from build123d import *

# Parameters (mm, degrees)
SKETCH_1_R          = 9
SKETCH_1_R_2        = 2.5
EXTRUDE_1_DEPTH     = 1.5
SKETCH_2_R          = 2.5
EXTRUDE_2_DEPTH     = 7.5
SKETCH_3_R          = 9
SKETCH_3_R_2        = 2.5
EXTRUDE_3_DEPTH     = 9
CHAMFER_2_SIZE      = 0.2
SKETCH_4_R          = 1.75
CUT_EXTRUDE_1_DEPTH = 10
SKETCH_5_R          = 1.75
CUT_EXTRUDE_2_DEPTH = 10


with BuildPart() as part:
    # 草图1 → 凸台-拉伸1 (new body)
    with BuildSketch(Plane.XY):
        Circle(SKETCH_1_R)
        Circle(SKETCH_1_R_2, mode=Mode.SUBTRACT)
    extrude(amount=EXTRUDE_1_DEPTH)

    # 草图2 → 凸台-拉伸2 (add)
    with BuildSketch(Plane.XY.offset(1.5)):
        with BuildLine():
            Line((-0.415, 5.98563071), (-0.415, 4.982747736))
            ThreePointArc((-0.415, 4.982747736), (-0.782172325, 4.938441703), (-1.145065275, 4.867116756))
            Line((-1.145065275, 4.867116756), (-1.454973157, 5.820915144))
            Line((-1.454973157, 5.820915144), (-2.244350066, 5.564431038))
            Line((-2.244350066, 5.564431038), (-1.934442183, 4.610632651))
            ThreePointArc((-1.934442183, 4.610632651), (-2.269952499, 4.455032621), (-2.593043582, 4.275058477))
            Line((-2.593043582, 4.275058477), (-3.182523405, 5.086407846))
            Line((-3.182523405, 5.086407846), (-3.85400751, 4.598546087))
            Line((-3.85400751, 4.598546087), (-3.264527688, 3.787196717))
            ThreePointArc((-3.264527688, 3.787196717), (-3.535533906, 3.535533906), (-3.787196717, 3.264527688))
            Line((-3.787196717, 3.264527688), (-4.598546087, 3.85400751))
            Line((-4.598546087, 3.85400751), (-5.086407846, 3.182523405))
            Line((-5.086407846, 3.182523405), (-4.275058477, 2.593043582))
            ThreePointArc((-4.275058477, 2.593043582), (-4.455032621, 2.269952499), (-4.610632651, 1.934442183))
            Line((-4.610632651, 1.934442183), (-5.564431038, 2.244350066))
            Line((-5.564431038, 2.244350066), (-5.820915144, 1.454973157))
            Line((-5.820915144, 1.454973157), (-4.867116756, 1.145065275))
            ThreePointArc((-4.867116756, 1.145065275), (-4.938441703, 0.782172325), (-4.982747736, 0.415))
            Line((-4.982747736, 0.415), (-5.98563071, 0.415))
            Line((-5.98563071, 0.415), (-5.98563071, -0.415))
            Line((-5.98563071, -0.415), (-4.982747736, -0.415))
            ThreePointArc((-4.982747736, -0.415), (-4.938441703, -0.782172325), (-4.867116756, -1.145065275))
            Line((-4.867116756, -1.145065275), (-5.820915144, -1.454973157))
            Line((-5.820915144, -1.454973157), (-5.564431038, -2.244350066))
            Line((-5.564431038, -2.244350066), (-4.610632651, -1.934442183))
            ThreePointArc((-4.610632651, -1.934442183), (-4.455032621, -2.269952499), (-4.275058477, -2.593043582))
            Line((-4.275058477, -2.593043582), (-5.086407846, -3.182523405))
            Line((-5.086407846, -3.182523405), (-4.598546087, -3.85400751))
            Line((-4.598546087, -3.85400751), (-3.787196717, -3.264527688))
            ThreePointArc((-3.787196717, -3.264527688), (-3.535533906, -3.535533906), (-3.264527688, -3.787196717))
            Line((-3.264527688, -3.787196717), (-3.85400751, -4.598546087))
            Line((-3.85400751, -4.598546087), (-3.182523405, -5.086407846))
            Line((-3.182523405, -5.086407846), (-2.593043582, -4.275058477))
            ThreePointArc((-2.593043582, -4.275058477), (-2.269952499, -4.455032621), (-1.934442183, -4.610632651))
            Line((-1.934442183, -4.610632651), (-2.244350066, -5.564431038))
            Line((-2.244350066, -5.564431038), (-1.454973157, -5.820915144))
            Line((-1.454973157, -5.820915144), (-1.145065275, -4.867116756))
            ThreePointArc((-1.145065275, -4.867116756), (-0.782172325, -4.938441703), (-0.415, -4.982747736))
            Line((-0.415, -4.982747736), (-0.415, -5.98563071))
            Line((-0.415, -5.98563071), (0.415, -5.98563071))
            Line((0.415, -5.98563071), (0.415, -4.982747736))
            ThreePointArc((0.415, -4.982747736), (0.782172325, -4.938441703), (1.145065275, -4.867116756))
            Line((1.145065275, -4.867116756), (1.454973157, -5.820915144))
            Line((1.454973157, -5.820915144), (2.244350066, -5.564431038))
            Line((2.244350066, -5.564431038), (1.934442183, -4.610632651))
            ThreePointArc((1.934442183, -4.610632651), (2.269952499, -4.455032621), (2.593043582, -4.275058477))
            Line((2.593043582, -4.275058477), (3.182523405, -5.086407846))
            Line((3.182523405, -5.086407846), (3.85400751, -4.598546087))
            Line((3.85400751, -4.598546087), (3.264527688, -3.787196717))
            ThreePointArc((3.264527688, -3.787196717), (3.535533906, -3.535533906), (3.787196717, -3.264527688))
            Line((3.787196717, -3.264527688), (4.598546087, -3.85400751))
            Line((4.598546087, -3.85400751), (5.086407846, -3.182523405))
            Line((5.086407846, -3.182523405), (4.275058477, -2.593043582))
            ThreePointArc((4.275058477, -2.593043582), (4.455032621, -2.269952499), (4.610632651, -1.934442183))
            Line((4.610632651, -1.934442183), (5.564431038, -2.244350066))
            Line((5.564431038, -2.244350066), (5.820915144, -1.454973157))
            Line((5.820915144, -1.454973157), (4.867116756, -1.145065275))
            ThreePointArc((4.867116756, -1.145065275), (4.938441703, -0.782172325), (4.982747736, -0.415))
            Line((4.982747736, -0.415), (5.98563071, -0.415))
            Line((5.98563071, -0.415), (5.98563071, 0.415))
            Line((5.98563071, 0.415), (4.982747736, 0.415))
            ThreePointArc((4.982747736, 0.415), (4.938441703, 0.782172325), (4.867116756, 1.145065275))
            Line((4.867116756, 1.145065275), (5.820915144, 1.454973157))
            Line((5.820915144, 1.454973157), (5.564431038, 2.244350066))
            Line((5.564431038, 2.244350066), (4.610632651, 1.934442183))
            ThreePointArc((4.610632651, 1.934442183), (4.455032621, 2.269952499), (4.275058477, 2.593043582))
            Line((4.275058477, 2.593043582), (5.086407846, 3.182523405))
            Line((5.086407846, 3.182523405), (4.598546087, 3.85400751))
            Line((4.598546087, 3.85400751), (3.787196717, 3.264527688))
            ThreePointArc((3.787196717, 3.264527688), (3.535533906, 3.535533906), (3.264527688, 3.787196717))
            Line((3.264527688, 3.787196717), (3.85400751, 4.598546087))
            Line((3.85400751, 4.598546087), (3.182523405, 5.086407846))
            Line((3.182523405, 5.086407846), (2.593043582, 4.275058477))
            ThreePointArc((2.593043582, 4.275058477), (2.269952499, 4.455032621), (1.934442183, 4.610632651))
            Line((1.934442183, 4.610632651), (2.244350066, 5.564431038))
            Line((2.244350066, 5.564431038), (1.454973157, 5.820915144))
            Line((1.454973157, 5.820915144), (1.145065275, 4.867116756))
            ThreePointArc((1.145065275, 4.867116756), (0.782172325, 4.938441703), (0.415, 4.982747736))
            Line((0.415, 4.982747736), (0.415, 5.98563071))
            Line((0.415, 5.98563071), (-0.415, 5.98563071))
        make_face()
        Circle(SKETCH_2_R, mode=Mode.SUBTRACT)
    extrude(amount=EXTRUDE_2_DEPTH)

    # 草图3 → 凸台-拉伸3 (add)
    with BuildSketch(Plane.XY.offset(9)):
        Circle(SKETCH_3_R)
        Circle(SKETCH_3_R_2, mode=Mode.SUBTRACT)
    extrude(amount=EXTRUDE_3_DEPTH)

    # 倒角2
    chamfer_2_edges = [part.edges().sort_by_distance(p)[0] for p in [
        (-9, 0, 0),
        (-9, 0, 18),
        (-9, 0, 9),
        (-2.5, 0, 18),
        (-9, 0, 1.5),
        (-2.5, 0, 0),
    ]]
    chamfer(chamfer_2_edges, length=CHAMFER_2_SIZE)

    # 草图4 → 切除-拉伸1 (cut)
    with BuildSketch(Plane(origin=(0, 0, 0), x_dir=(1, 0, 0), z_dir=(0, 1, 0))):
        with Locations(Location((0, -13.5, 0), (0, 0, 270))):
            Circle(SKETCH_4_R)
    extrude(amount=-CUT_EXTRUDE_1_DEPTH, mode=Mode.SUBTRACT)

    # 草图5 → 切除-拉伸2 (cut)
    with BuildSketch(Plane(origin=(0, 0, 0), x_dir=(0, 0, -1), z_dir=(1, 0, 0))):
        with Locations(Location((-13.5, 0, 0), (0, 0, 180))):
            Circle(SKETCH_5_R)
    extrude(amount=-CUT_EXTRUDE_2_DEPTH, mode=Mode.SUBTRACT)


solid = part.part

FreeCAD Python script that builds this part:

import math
import FreeCAD as App
import Part
import Sketcher
from FreeCAD import Vector
Q = App.Units.Quantity


def edges_at(feature, points):
    """Names of the edges that pass closest to the given points."""
    edges = feature.Shape.Edges
    near = lambda p: min(range(len(edges)), key=lambda i: edges[i].distToShape(Part.Vertex(*p))[0])
    return sorted({f"Edge{near(p) + 1}" for p in points})

doc = App.newDocument("Part")
params = doc.addObject("Spreadsheet::Sheet", "Params")
for row, (alias, value) in enumerate([
    ("sketch1_diameter", "18 mm"),
    ("sketch1_diameter2", "5 mm"),
    ("pad1_length", "1.5 mm"),
    ("sketch2_diameter", "5 mm"),
    ("sketch2_radius", "5 mm"),
    ("sketch2_width", "0.83 mm"),
    ("sketch2_length", "0.83 mm"),
    ("pad2_length", "7.5 mm"),
    ("sketch3_diameter", "18 mm"),
    ("sketch3_diameter2", "5 mm"),
    ("pad3_length", "9 mm"),
    ("chamfer_size", "0.2 mm"),
    ("sketch4_diameter", "3.5 mm"),
    ("pocket1_length", "10 mm"),
    ("sketch5_diameter", "3.5 mm"),
    ("pocket2_length", "10 mm"),
], start=1):
    params.set(f"A{row}", alias)
    params.set(f"B{row}", "=" + value)
    params.setAlias(f"B{row}", alias)

body = doc.addObject("PartDesign::Body", "Body")

sketch1 = doc.addObject("Sketcher::SketchObject", "Sketch")
body.addObject(sketch1)
sketch1.AttachmentSupport = (doc.XY_Plane, [""])
sketch1.MapMode = "FlatFace"
sketch1.addGeometry([
    Part.Circle(Vector(0, 0, 0), Vector(0, 0, 1), 9),
    Part.Circle(Vector(0, 0, 0), Vector(0, 0, 1), 2.5),
], False)
sketch1.addConstraint([
    Sketcher.Constraint("Coincident", 0, 3, -1, 1),
    Sketcher.Constraint("Coincident", 1, 3, -1, 1),
    Sketcher.Constraint("Diameter", 0, 18.0),
    Sketcher.Constraint("Diameter", 1, 5.0),
])
sketch1.setExpression("Constraints[2]", "Params.sketch1_diameter")
sketch1.setExpression("Constraints[3]", "Params.sketch1_diameter2")
pad1 = doc.addObject("PartDesign::Pad", "Pad")
body.addObject(pad1)
pad1.Profile = sketch1
pad1.setExpression("Length", "Params.pad1_length")

sketch2 = doc.addObject("Sketcher::SketchObject", "Sketch001")
body.addObject(sketch2)
sketch2.AttachmentSupport = (doc.XY_Plane, [""])
sketch2.MapMode = "FlatFace"
sketch2.AttachmentOffset = App.Placement(Vector(0, 0, 1.5), App.Rotation())
sketch2.addGeometry([
    Part.LineSegment(Vector(-0.4, 6, 0), Vector(-0.4, 5, 0)),
    Part.ArcOfCircle(Part.Circle(Vector(0, 0, 0), Vector(0, 0, 1), 5), math.radians(94.76), math.radians(103.24)),
    Part.LineSegment(Vector(-1.1, 4.9, 0), Vector(-1.5, 5.8, 0)),
    Part.LineSegment(Vector(-1.5, 5.8, 0), Vector(-2.2, 5.6, 0)),
    Part.LineSegment(Vector(-2.2, 5.6, 0), Vector(-1.9, 4.6, 0)),
    Part.ArcOfCircle(Part.Circle(Vector(0, 0, 0), Vector(0, 0, 1), 5), math.radians(112.76), math.radians(121.24)),
    Part.LineSegment(Vector(-2.6, 4.3, 0), Vector(-3.2, 5.1, 0)),
    Part.LineSegment(Vector(-3.2, 5.1, 0), Vector(-3.9, 4.6, 0)),
    Part.LineSegment(Vector(-3.9, 4.6, 0), Vector(-3.3, 3.8, 0)),
    Part.ArcOfCircle(Part.Circle(Vector(0, 0, 0), Vector(0, 0, 1), 5), math.radians(130.76), math.radians(139.24)),
    Part.LineSegment(Vector(-3.8, 3.3, 0), Vector(-4.6, 3.9, 0)),
    Part.LineSegment(Vector(-4.6, 3.9, 0), Vector(-5.1, 3.2, 0)),
    Part.LineSegment(Vector(-5.1, 3.2, 0), Vector(-4.3, 2.6, 0)),
    Part.ArcOfCircle(Part.Circle(Vector(0, 0, 0), Vector(0, 0, 1), 5), math.radians(148.76), math.radians(157.24)),
    Part.LineSegment(Vector(-4.6, 1.9, 0), Vector(-5.6, 2.2, 0)),
    Part.LineSegment(Vector(-5.6, 2.2, 0), Vector(-5.8, 1.5, 0)),
    Part.LineSegment(Vector(-5.8, 1.5, 0), Vector(-4.9, 1.1, 0)),
    Part.ArcOfCircle(Part.Circle(Vector(0, 0, 0), Vector(0, 0, 1), 5), math.radians(166.76), math.radians(175.24)),
    Part.LineSegment(Vector(-5, 0.4, 0), Vector(-6, 0.4, 0)),
    Part.LineSegment(Vector(-6, 0.4, 0), Vector(-6, -0.4, 0)),
    Part.LineSegment(Vector(-6, -0.4, 0), Vector(-5, -0.4, 0)),
    Part.ArcOfCircle(Part.Circle(Vector(0, 0, 0), Vector(0, 0, 1), 5), math.radians(-175.24), math.radians(-166.76)),
    Part.LineSegment(Vector(-4.9, -1.1, 0), Vector(-5.8, -1.5, 0)),
    Part.LineSegment(Vector(-5.8, -1.5, 0), Vector(-5.6, -2.2, 0)),
    Part.LineSegment(Vector(-5.6, -2.2, 0), Vector(-4.6, -1.9, 0)),
    Part.ArcOfCircle(Part.Circle(Vector(0, 0, 0), Vector(0, 0, 1), 5), math.radians(-157.24), math.radians(-148.76)),
    Part.LineSegment(Vector(-4.3, -2.6, 0), Vector(-5.1, -3.2, 0)),
    Part.LineSegment(Vector(-5.1, -3.2, 0), Vector(-4.6, -3.9, 0)),
    Part.LineSegment(Vector(-4.6, -3.9, 0), Vector(-3.8, -3.3, 0)),
    Part.ArcOfCircle(Part.Circle(Vector(0, 0, 0), Vector(0, 0, 1), 5), math.radians(-139.24), math.radians(-130.76)),
    Part.LineSegment(Vector(-3.3, -3.8, 0), Vector(-3.9, -4.6, 0)),
    Part.LineSegment(Vector(-3.9, -4.6, 0), Vector(-3.2, -5.1, 0)),
    Part.LineSegment(Vector(-3.2, -5.1, 0), Vector(-2.6, -4.3, 0)),
    Part.ArcOfCircle(Part.Circle(Vector(0, 0, 0), Vector(0, 0, 1), 5), math.radians(-121.24), math.radians(-112.76)),
    Part.LineSegment(Vector(-1.9, -4.6, 0), Vector(-2.2, -5.6, 0)),
    Part.LineSegment(Vector(-2.2, -5.6, 0), Vector(-1.5, -5.8, 0)),
    Part.LineSegment(Vector(-1.5, -5.8, 0), Vector(-1.1, -4.9, 0)),
    Part.ArcOfCircle(Part.Circle(Vector(0, 0, 0), Vector(0, 0, 1), 5), math.radians(-103.24), math.radians(-94.76)),
    Part.LineSegment(Vector(-0.4, -5, 0), Vector(-0.4, -6, 0)),
    Part.LineSegment(Vector(-0.4, -6, 0), Vector(0.4, -6, 0)),
    Part.LineSegment(Vector(0.4, -6, 0), Vector(0.4, -5, 0)),
    Part.ArcOfCircle(Part.Circle(Vector(0, 0, 0), Vector(0, 0, 1), 5), math.radians(-85.24), math.radians(-76.76)),
    Part.LineSegment(Vector(1.1, -4.9, 0), Vector(1.5, -5.8, 0)),
    Part.LineSegment(Vector(1.5, -5.8, 0), Vector(2.2, -5.6, 0)),
    Part.LineSegment(Vector(2.2, -5.6, 0), Vector(1.9, -4.6, 0)),
    Part.ArcOfCircle(Part.Circle(Vector(0, 0, 0), Vector(0, 0, 1), 5), math.radians(-67.24), math.radians(-58.76)),
    Part.LineSegment(Vector(2.6, -4.3, 0), Vector(3.2, -5.1, 0)),
    Part.LineSegment(Vector(3.2, -5.1, 0), Vector(3.9, -4.6, 0)),
    Part.LineSegment(Vector(3.9, -4.6, 0), Vector(3.3, -3.8, 0)),
    Part.ArcOfCircle(Part.Circle(Vector(0, 0, 0), Vector(0, 0, 1), 5), math.radians(-49.24), math.radians(-40.76)),
    Part.LineSegment(Vector(3.8, -3.3, 0), Vector(4.6, -3.9, 0)),
    Part.LineSegment(Vector(4.6, -3.9, 0), Vector(5.1, -3.2, 0)),
    Part.LineSegment(Vector(5.1, -3.2, 0), Vector(4.3, -2.6, 0)),
    Part.ArcOfCircle(Part.Circle(Vector(0, 0, 0), Vector(0, 0, 1), 5), math.radians(-31.24), math.radians(-22.76)),
    Part.LineSegment(Vector(4.6, -1.9, 0), Vector(5.6, -2.2, 0)),
    Part.LineSegment(Vector(5.6, -2.2, 0), Vector(5.8, -1.5, 0)),
    Part.LineSegment(Vector(5.8, -1.5, 0), Vector(4.9, -1.1, 0)),
    Part.ArcOfCircle(Part.Circle(Vector(0, 0, 0), Vector(0, 0, 1), 5), math.radians(-13.24), math.radians(-4.76)),
    Part.LineSegment(Vector(5, -0.4, 0), Vector(6, -0.4, 0)),
    Part.LineSegment(Vector(6, -0.4, 0), Vector(6, 0.4, 0)),
    Part.LineSegment(Vector(6, 0.4, 0), Vector(5, 0.4, 0)),
    Part.ArcOfCircle(Part.Circle(Vector(0, 0, 0), Vector(0, 0, 1), 5), math.radians(4.76), math.radians(13.24)),
    Part.LineSegment(Vector(4.9, 1.1, 0), Vector(5.8, 1.5, 0)),
    Part.LineSegment(Vector(5.8, 1.5, 0), Vector(5.6, 2.2, 0)),
    Part.LineSegment(Vector(5.6, 2.2, 0), Vector(4.6, 1.9, 0)),
    Part.ArcOfCircle(Part.Circle(Vector(0, 0, 0), Vector(0, 0, 1), 5), math.radians(22.76), math.radians(31.24)),
    Part.LineSegment(Vector(4.3, 2.6, 0), Vector(5.1, 3.2, 0)),
    Part.LineSegment(Vector(5.1, 3.2, 0), Vector(4.6, 3.9, 0)),
    Part.LineSegment(Vector(4.6, 3.9, 0), Vector(3.8, 3.3, 0)),
    Part.ArcOfCircle(Part.Circle(Vector(0, 0, 0), Vector(0, 0, 1), 5), math.radians(40.76), math.radians(49.24)),
    Part.LineSegment(Vector(3.3, 3.8, 0), Vector(3.9, 4.6, 0)),
    Part.LineSegment(Vector(3.9, 4.6, 0), Vector(3.2, 5.1, 0)),
    Part.LineSegment(Vector(3.2, 5.1, 0), Vector(2.6, 4.3, 0)),
    Part.ArcOfCircle(Part.Circle(Vector(0, 0, 0), Vector(0, 0, 1), 5), math.radians(58.76), math.radians(67.24)),
    Part.LineSegment(Vector(1.9, 4.6, 0), Vector(2.2, 5.6, 0)),
    Part.LineSegment(Vector(2.2, 5.6, 0), Vector(1.5, 5.8, 0)),
    Part.LineSegment(Vector(1.5, 5.8, 0), Vector(1.1, 4.9, 0)),
    Part.ArcOfCircle(Part.Circle(Vector(0, 0, 0), Vector(0, 0, 1), 5), math.radians(76.76), math.radians(85.24)),
    Part.LineSegment(Vector(0.4, 5, 0), Vector(0.4, 6, 0)),
    Part.LineSegment(Vector(0.4, 6, 0), Vector(-0.4, 6, 0)),
    Part.Circle(Vector(0, 0, 0), Vector(0, 0, 1), 2.5),
], False)
sketch2.addConstraint([
    Sketcher.Constraint("Coincident", 0, 2, 1, 1),
    Sketcher.Constraint("Coincident", 1, 2, 2, 1),
    Sketcher.Constraint("Coincident", 2, 2, 3, 1),
    Sketcher.Constraint("Coincident", 3, 2, 4, 1),
    Sketcher.Constraint("Coincident", 4, 2, 5, 1),
    Sketcher.Constraint("Coincident", 5, 2, 6, 1),
    Sketcher.Constraint("Coincident", 6, 2, 7, 1),
    Sketcher.Constraint("Coincident", 7, 2, 8, 1),
    Sketcher.Constraint("Coincident", 8, 2, 9, 1),
    Sketcher.Constraint("Coincident", 9, 2, 10, 1),
    Sketcher.Constraint("Coincident", 10, 2, 11, 1),
    Sketcher.Constraint("Coincident", 11, 2, 12, 1),
    Sketcher.Constraint("Coincident", 12, 2, 13, 1),
    Sketcher.Constraint("Coincident", 13, 2, 14, 1),
    Sketcher.Constraint("Coincident", 14, 2, 15, 1),
    Sketcher.Constraint("Coincident", 15, 2, 16, 1),
    Sketcher.Constraint("Coincident", 16, 2, 17, 1),
    Sketcher.Constraint("Coincident", 17, 2, 18, 1),
    Sketcher.Constraint("Coincident", 18, 2, 19, 1),
    Sketcher.Constraint("Coincident", 19, 2, 20, 1),
    Sketcher.Constraint("Coincident", 20, 2, 21, 1),
    Sketcher.Constraint("Coincident", 21, 2, 22, 1),
    Sketcher.Constraint("Coincident", 22, 2, 23, 1),
    Sketcher.Constraint("Coincident", 23, 2, 24, 1),
    Sketcher.Constraint("Coincident", 24, 2, 25, 1),
    Sketcher.Constraint("Coincident", 25, 2, 26, 1),
    Sketcher.Constraint("Coincident", 26, 2, 27, 1),
    Sketcher.Constraint("Coincident", 27, 2, 28, 1),
    Sketcher.Constraint("Coincident", 28, 2, 29, 1),
    Sketcher.Constraint("Coincident", 29, 2, 30, 1),
    Sketcher.Constraint("Coincident", 30, 2, 31, 1),
    Sketcher.Constraint("Coincident", 31, 2, 32, 1),
    Sketcher.Constraint("Coincident", 32, 2, 33, 1),
    Sketcher.Constraint("Coincident", 33, 2, 34, 1),
    Sketcher.Constraint("Coincident", 34, 2, 35, 1),
    Sketcher.Constraint("Coincident", 35, 2, 36, 1),
    Sketcher.Constraint("Coincident", 36, 2, 37, 1),
    Sketcher.Constraint("Coincident", 37, 2, 38, 1),
    Sketcher.Constraint("Coincident", 38, 2, 39, 1),
    Sketcher.Constraint("Coincident", 39, 2, 40, 1),
    Sketcher.Constraint("Coincident", 40, 2, 41, 1),
    Sketcher.Constraint("Coincident", 41, 2, 42, 1),
    Sketcher.Constraint("Coincident", 42, 2, 43, 1),
    Sketcher.Constraint("Coincident", 43, 2, 44, 1),
    Sketcher.Constraint("Coincident", 44, 2, 45, 1),
    Sketcher.Constraint("Coincident", 45, 2, 46, 1),
    Sketcher.Constraint("Coincident", 46, 2, 47, 1),
    Sketcher.Constraint("Coincident", 47, 2, 48, 1),
    Sketcher.Constraint("Coincident", 48, 2, 49, 1),
    Sketcher.Constraint("Coincident", 49, 2, 50, 1),
    Sketcher.Constraint("Coincident", 50, 2, 51, 1),
    Sketcher.Constraint("Coincident", 51, 2, 52, 1),
    Sketcher.Constraint("Coincident", 52, 2, 53, 1),
    Sketcher.Constraint("Coincident", 53, 2, 54, 1),
    Sketcher.Constraint("Coincident", 54, 2, 55, 1),
    Sketcher.Constraint("Coincident", 55, 2, 56, 1),
    Sketcher.Constraint("Coincident", 56, 2, 57, 1),
    Sketcher.Constraint("Coincident", 57, 2, 58, 1),
    Sketcher.Constraint("Coincident", 58, 2, 59, 1),
    Sketcher.Constraint("Coincident", 59, 2, 60, 1),
    Sketcher.Constraint("Coincident", 60, 2, 61, 1),
    Sketcher.Constraint("Coincident", 61, 2, 62, 1),
    Sketcher.Constraint("Coincident", 62, 2, 63, 1),
    Sketcher.Constraint("Coincident", 63, 2, 64, 1),
    Sketcher.Constraint("Coincident", 64, 2, 65, 1),
    Sketcher.Constraint("Coincident", 65, 2, 66, 1),
    Sketcher.Constraint("Coincident", 66, 2, 67, 1),
    Sketcher.Constraint("Coincident", 67, 2, 68, 1),
    Sketcher.Constraint("Coincident", 68, 2, 69, 1),
    Sketcher.Constraint("Coincident", 69, 2, 70, 1),
    Sketcher.Constraint("Coincident", 70, 2, 71, 1),
    Sketcher.Constraint("Coincident", 71, 2, 72, 1),
    Sketcher.Constraint("Coincident", 72, 2, 73, 1),
    Sketcher.Constraint("Coincident", 73, 2, 74, 1),
    Sketcher.Constraint("Coincident", 74, 2, 75, 1),
    Sketcher.Constraint("Coincident", 75, 2, 76, 1),
    Sketcher.Constraint("Coincident", 76, 2, 77, 1),
    Sketcher.Constraint("Coincident", 77, 2, 78, 1),
    Sketcher.Constraint("Coincident", 78, 2, 79, 1),
    Sketcher.Constraint("Coincident", 79, 2, 0, 1),
    Sketcher.Constraint("Vertical", 0),
    Sketcher.Constraint("Horizontal", 18),
    Sketcher.Constraint("Vertical", 19),
    Sketcher.Constraint("Horizontal", 20),
    Sketcher.Constraint("Vertical", 38),
    Sketcher.Constraint("Horizontal", 39),
    Sketcher.Constraint("Vertical", 40),
    Sketcher.Constraint("Horizontal", 58),
    Sketcher.Constraint("Vertical", 59),
    Sketcher.Constraint("Horizontal", 60),
    Sketcher.Constraint("Vertical", 78),
    Sketcher.Constraint("Horizontal", 79),
    Sketcher.Constraint("Coincident", 1, 3, -1, 1),
    Sketcher.Constraint("Coincident", 5, 3, -1, 1),
    Sketcher.Constraint("Coincident", 9, 3, -1, 1),
    Sketcher.Constraint("Coincident", 13, 3, -1, 1),
    Sketcher.Constraint("Coincident", 17, 3, -1, 1),
    Sketcher.Constraint("Coincident", 21, 3, -1, 1),
    Sketcher.Constraint("Coincident", 25, 3, -1, 1),
    Sketcher.Constraint("Coincident", 29, 3, -1, 1),
    Sketcher.Constraint("Coincident", 33, 3, -1, 1),
    Sketcher.Constraint("Coincident", 37, 3, -1, 1),
    Sketcher.Constraint("Coincident", 41, 3, -1, 1),
    Sketcher.Constraint("Coincident", 45, 3, -1, 1),
    Sketcher.Constraint("Coincident", 49, 3, -1, 1),
    Sketcher.Constraint("Coincident", 53, 3, -1, 1),
    Sketcher.Constraint("Coincident", 57, 3, -1, 1),
    Sketcher.Constraint("Coincident", 61, 3, -1, 1),
    Sketcher.Constraint("Coincident", 65, 3, -1, 1),
    Sketcher.Constraint("Coincident", 69, 3, -1, 1),
    Sketcher.Constraint("Coincident", 73, 3, -1, 1),
    Sketcher.Constraint("Coincident", 77, 3, -1, 1),
    Sketcher.Constraint("Coincident", 80, 3, -1, 1),
    Sketcher.Constraint("Equal", 1, 5),
    Sketcher.Constraint("Equal", 5, 9),
    Sketcher.Constraint("Equal", 9, 13),
    Sketcher.Constraint("Equal", 13, 17),
    Sketcher.Constraint("Equal", 17, 21),
    Sketcher.Constraint("Equal", 21, 25),
    Sketcher.Constraint("Equal", 25, 29),
    Sketcher.Constraint("Equal", 29, 33),
    Sketcher.Constraint("Equal", 33, 37),
    Sketcher.Constraint("Equal", 37, 41),
    Sketcher.Constraint("Equal", 41, 45),
    Sketcher.Constraint("Equal", 45, 49),
    Sketcher.Constraint("Equal", 49, 53),
    Sketcher.Constraint("Equal", 53, 57),
    Sketcher.Constraint("Equal", 57, 61),
    Sketcher.Constraint("Equal", 61, 65),
    Sketcher.Constraint("Equal", 65, 69),
    Sketcher.Constraint("Equal", 69, 73),
    Sketcher.Constraint("Equal", 73, 77),
    Sketcher.Constraint("Symmetric", 2, 2, 42, 2, -1, 1),
    Sketcher.Constraint("Symmetric", 3, 2, 43, 2, -1, 1),
    Sketcher.Constraint("Symmetric", 6, 2, 46, 2, -1, 1),
    Sketcher.Constraint("Symmetric", 7, 2, 47, 2, -1, 1),
    Sketcher.Constraint("Symmetric", 10, 2, 50, 2, -1, 1),
    Sketcher.Constraint("Symmetric", 11, 2, 51, 2, -1, 1),
    Sketcher.Constraint("Symmetric", 14, 2, 54, 2, -1, 1),
    Sketcher.Constraint("Symmetric", 15, 2, 55, 2, -1, 1),
    Sketcher.Constraint("Symmetric", 18, 2, 58, 2, -1, 1),
    Sketcher.Constraint("Symmetric", 22, 2, 62, 2, -1, 1),
    Sketcher.Constraint("Symmetric", 23, 2, 63, 2, -1, 1),
    Sketcher.Constraint("Symmetric", 26, 2, 66, 2, -1, 1),
    Sketcher.Constraint("Symmetric", 27, 2, 67, 2, -1, 1),
    Sketcher.Constraint("Symmetric", 30, 2, 70, 2, -1, 1),
    Sketcher.Constraint("Symmetric", 31, 2, 71, 2, -1, 1),
    Sketcher.Constraint("Symmetric", 34, 2, 74, 2, -1, 1),
    Sketcher.Constraint("Symmetric", 35, 2, 75, 2, -1, 1),
    Sketcher.Constraint("Symmetric", 38, 2, 78, 2, -1, 1),
    Sketcher.Constraint("Symmetric", 35, 2, 42, 2, -2),
    Sketcher.Constraint("Symmetric", 34, 2, 43, 2, -2),
    Sketcher.Constraint("Symmetric", 31, 2, 46, 2, -2),
    Sketcher.Constraint("Symmetric", 30, 2, 47, 2, -2),
    Sketcher.Constraint("Symmetric", 27, 2, 50, 2, -2),
    Sketcher.Constraint("Symmetric", 26, 2, 51, 2, -2),
    Sketcher.Constraint("Symmetric", 23, 2, 54, 2, -2),
    Sketcher.Constraint("Symmetric", 22, 2, 55, 2, -2),
    Sketcher.Constraint("Perpendicular", 2, 3),
    Sketcher.Constraint("Perpendicular", 3, 4),
    Sketcher.Constraint("Perpendicular", 6, 7),
    Sketcher.Constraint("Perpendicular", 7, 8),
    Sketcher.Constraint("Perpendicular", 10, 11),
    Sketcher.Constraint("Perpendicular", 11, 12),
    Sketcher.Constraint("Perpendicular", 14, 15),
    Sketcher.Constraint("Perpendicular", 15, 16),
    Sketcher.Constraint("Perpendicular", 4, 22),
    Sketcher.Constraint("Perpendicular", 22, 23),
    Sketcher.Constraint("Perpendicular", 23, 24),
    Sketcher.Constraint("Perpendicular", 8, 26),
    Sketcher.Constraint("Perpendicular", 26, 27),
    Sketcher.Constraint("Perpendicular", 27, 28),
    Sketcher.Constraint("Perpendicular", 12, 30),
    Sketcher.Constraint("Perpendicular", 31, 32),
    Sketcher.Constraint("Perpendicular", 16, 34),
    Sketcher.Constraint("Perpendicular", 35, 36),
    Sketcher.Constraint("Perpendicular", 24, 42),
    Sketcher.Constraint("Perpendicular", 43, 44),
    Sketcher.Constraint("Perpendicular", 28, 46),
    Sketcher.Constraint("Perpendicular", 47, 48),
    Sketcher.Constraint("Perpendicular", 32, 50),
    Sketcher.Constraint("Perpendicular", 51, 52),
    Sketcher.Constraint("Perpendicular", 36, 54),
    Sketcher.Constraint("Perpendicular", 55, 56),
    Sketcher.Constraint("Perpendicular", 44, 62),
    Sketcher.Constraint("Perpendicular", 63, 64),
    Sketcher.Constraint("Perpendicular", 48, 66),
    Sketcher.Constraint("Perpendicular", 67, 68),
    Sketcher.Constraint("Perpendicular", 52, 70),
    Sketcher.Constraint("Perpendicular", 71, 72),
    Sketcher.Constraint("Perpendicular", 56, 74),
    Sketcher.Constraint("Perpendicular", 75, 76),
    Sketcher.Constraint("Horizontal", 37, 2, 40, 2),
    Sketcher.Constraint("Horizontal", 20, 2, 57, 2),
    Sketcher.Constraint("Horizontal", 18, 2, 59, 2),
    Sketcher.Constraint("Horizontal", 0, 2, 77, 2),
    Sketcher.Constraint("Equal", 60, 0),
    Sketcher.Constraint("Equal", 79, 19),
    Sketcher.Constraint("Equal", 2, 4),
    Sketcher.Constraint("Equal", 4, 6),
    Sketcher.Constraint("Equal", 3, 7),
    Sketcher.Constraint("Equal", 6, 8),
    Sketcher.Constraint("Equal", 8, 10),
    Sketcher.Constraint("Equal", 7, 11),
    Sketcher.Constraint("Equal", 10, 12),
    Sketcher.Constraint("Equal", 12, 14),
    Sketcher.Constraint("Equal", 11, 15),
    Sketcher.Constraint("Equal", 14, 16),
    Sketcher.Constraint("Diameter", 80, 5.0),
    Sketcher.Constraint("Radius", 1, 5.0),
    Sketcher.Constraint("Angle", 2, Q("108 deg")),
    Sketcher.Constraint("Angle", 6, Q("126 deg")),
    Sketcher.Constraint("DistanceX", 39, 1, 39, 2, 0.83),
    Sketcher.Constraint("Distance", 3, 0.83),
    Sketcher.Constraint("DistanceX", 18, 2, 18, 1, 1.002883),
    Sketcher.Constraint("DistanceX", 3, 2, -1, 1, 2.24435),
])
sketch2.setExpression("Constraints[208]", "Params.sketch2_diameter")
sketch2.setExpression("Constraints[209]", "Params.sketch2_radius")
sketch2.setExpression("Constraints[212]", "Params.sketch2_width")
sketch2.setExpression("Constraints[213]", "Params.sketch2_length")
pad2 = doc.addObject("PartDesign::Pad", "Pad001")
body.addObject(pad2)
pad2.Profile = sketch2
pad2.setExpression("Length", "Params.pad2_length")

sketch3 = doc.addObject("Sketcher::SketchObject", "Sketch002")
body.addObject(sketch3)
sketch3.AttachmentSupport = (doc.XY_Plane, [""])
sketch3.MapMode = "FlatFace"
sketch3.AttachmentOffset = App.Placement(Vector(0, 0, 9), App.Rotation())
sketch3.addGeometry([
    Part.Circle(Vector(0, 0, 0), Vector(0, 0, 1), 9),
    Part.Circle(Vector(0, 0, 0), Vector(0, 0, 1), 2.5),
], False)
sketch3.addConstraint([
    Sketcher.Constraint("Coincident", 0, 3, -1, 1),
    Sketcher.Constraint("Coincident", 1, 3, -1, 1),
    Sketcher.Constraint("Diameter", 0, 18.0),
    Sketcher.Constraint("Diameter", 1, 5.0),
])
sketch3.setExpression("Constraints[2]", "Params.sketch3_diameter")
sketch3.setExpression("Constraints[3]", "Params.sketch3_diameter2")
pad3 = doc.addObject("PartDesign::Pad", "Pad002")
body.addObject(pad3)
pad3.Profile = sketch3
pad3.setExpression("Length", "Params.pad3_length")
doc.recompute()

chamfer = doc.addObject("PartDesign::Chamfer", "Chamfer")
body.addObject(chamfer)
chamfer.Base = (pad3, edges_at(pad3, [
    (-9, 0, 0),
    (-9, 0, 18),
    (-9, 0, 9),
    (-2.5, 0, 18),
    (-9, 0, 1.5),
    (-2.5, 0, 0),
]))
chamfer.setExpression("Size", "Params.chamfer_size")

sketch4 = doc.addObject("Sketcher::SketchObject", "Sketch003")
body.addObject(sketch4)
sketch4.AttachmentSupport = (doc.XZ_Plane, [""])
sketch4.MapMode = "FlatFace"
sketch4.addGeometry(Part.Circle(Vector(0, 13.5, 0), Vector(0, 0, 1), 1.8), False)
sketch4.addConstraint([
    Sketcher.Constraint("PointOnObject", 0, 3, -2),
    Sketcher.Constraint("Diameter", 0, 3.5),
    Sketcher.Constraint("DistanceY", -1, 1, 0, 3, 13.5),
])
sketch4.setExpression("Constraints[1]", "Params.sketch4_diameter")
pocket1 = doc.addObject("PartDesign::Pocket", "Pocket")
body.addObject(pocket1)
pocket1.Profile = sketch4
pocket1.setExpression("Length", "Params.pocket1_length")
pocket1.Reversed = True

sketch5 = doc.addObject("Sketcher::SketchObject", "Sketch004")
body.addObject(sketch5)
sketch5.AttachmentSupport = (doc.YZ_Plane, [""])
sketch5.MapMode = "FlatFace"
sketch5.addGeometry(Part.Circle(Vector(0, 13.5, 0), Vector(0, 0, 1), 1.8), False)
sketch5.addConstraint([
    Sketcher.Constraint("PointOnObject", 0, 3, -2),
    Sketcher.Constraint("Diameter", 0, 3.5),
    Sketcher.Constraint("DistanceY", -1, 1, 0, 3, 13.5),
])
sketch5.setExpression("Constraints[1]", "Params.sketch5_diameter")
pocket2 = doc.addObject("PartDesign::Pocket", "Pocket001")
body.addObject(pocket2)
pocket2.Profile = sketch5
pocket2.setExpression("Length", "Params.pocket2_length")

doc.recompute()
